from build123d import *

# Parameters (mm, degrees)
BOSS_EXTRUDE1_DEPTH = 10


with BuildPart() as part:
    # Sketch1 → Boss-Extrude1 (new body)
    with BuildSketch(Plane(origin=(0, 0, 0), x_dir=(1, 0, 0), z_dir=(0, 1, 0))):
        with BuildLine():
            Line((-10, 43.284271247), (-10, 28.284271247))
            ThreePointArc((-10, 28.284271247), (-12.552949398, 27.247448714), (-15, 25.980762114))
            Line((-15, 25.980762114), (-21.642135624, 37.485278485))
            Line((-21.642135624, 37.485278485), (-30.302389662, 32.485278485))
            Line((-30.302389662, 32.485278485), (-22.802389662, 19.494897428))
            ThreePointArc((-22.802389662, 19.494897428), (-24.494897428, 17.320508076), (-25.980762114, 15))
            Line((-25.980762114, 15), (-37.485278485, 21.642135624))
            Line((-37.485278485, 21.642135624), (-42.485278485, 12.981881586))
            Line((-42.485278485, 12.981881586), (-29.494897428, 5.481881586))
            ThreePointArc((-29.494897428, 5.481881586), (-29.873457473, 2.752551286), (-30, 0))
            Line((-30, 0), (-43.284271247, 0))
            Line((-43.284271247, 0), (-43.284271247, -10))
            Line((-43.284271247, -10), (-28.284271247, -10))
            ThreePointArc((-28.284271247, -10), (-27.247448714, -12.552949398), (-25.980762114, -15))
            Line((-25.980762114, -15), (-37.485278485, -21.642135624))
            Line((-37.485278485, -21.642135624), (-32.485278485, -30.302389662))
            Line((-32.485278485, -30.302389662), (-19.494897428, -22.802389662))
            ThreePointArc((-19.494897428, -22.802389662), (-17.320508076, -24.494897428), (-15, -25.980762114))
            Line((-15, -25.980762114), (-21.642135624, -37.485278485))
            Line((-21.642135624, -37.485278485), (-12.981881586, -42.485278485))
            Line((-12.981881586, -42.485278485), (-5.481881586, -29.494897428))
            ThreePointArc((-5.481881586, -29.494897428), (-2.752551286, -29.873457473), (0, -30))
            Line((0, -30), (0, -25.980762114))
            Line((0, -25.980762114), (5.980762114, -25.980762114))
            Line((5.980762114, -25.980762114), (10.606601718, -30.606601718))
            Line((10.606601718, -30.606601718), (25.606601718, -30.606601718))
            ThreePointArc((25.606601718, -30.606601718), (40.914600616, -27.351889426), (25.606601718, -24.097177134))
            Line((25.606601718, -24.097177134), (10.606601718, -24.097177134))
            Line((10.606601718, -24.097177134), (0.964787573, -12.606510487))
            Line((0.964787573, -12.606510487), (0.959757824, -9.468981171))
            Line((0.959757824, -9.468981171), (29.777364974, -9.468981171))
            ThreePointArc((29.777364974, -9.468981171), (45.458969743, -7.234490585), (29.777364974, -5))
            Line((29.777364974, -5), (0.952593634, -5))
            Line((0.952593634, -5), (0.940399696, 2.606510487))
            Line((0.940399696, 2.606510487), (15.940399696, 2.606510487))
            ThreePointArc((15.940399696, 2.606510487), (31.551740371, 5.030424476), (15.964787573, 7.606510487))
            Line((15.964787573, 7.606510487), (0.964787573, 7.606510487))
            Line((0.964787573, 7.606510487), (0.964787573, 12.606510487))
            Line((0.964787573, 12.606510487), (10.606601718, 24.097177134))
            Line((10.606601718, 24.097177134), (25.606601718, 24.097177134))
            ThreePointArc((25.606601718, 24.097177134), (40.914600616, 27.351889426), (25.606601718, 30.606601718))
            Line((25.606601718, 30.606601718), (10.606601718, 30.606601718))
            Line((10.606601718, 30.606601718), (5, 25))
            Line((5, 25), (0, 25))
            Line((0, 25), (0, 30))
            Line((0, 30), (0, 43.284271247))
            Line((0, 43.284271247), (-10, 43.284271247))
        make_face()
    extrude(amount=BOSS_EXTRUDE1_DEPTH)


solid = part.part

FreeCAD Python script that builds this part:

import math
import FreeCAD as App
import Part
import Sketcher

V = App.Vector
Q = App.Units.Quantity

doc = App.newDocument("Part")
params = doc.addObject("Spreadsheet::Sheet", "Params")
for row, (alias, value) in enumerate([
    ("sketch1_radius", "30 mm"),
    ("sketch1_radius2", "8 mm"),
    ("sketch1_width", "15 mm"),
    ("sketch1_width2", "5 mm"),
    ("sketch1_width3", "10 mm"),
    ("pad1_length", "10 mm"),
], start=1):
    params.set(f"A{row}", alias)
    params.set(f"B{row}", "=" + value)
    params.setAlias(f"B{row}", alias)

body = doc.addObject("PartDesign::Body", "Body")

# Sketch on XZ plane
sketch1 = body.newObject("Sketcher::SketchObject", "Sketch")
sketch1.AttachmentSupport = (doc.getObject("XZ_Plane"), [""])
sketch1.MapMode = "FlatFace"
sketch1.addGeometry(Part.LineSegment(V(-10, -43.3, 0), V(-10, -28.3, 0)), False)
sketch1.addGeometry(Part.ArcOfCircle(Part.Circle(V(0, 0, 0), V(0, 0, 1), 30), math.radians(-120), math.radians(-109.47)), False)
sketch1.addGeometry(Part.LineSegment(V(-15, -26, 0), V(-21.6, -37.5, 0)), False)
sketch1.addGeometry(Part.LineSegment(V(-21.6, -37.5, 0), V(-30.3, -32.5, 0)), False)
sketch1.addGeometry(Part.LineSegment(V(-30.3, -32.5, 0), V(-22.8, -19.5, 0)), False)
sketch1.addGeometry(Part.ArcOfCircle(Part.Circle(V(0, 0, 0), V(0, 0, 1), 30), math.radians(-150), math.radians(-139.47)), False)
sketch1.addGeometry(Part.LineSegment(V(-26, -15, 0), V(-37.5, -21.6, 0)), False)
sketch1.addGeometry(Part.LineSegment(V(-37.5, -21.6, 0), V(-42.5, -13, 0)), False)
sketch1.addGeometry(Part.LineSegment(V(-42.5, -13, 0), V(-29.5, -5.5, 0)), False)
sketch1.addGeometry(Part.ArcOfCircle(Part.Circle(V(0, 0, 0), V(0, 0, 1), 30), math.radians(-180), math.radians(-169.47)), False)
sketch1.addGeometry(Part.LineSegment(V(-30, 0, 0), V(-43.3, 0, 0)), False)
sketch1.addGeometry(Part.LineSegment(V(-43.3, 0, 0), V(-43.3, 10, 0)), False)
sketch1.addGeometry(Part.LineSegment(V(-43.3, 10, 0), V(-28.3, 10, 0)), False)
sketch1.addGeometry(Part.ArcOfCircle(Part.Circle(V(0, 0, 0), V(0, 0, 1), 30), math.radians(150), math.radians(160.53)), False)
sketch1.addGeometry(Part.LineSegment(V(-26, 15, 0), V(-37.5, 21.6, 0)), False)
sketch1.addGeometry(Part.LineSegment(V(-37.5, 21.6, 0), V(-32.5, 30.3, 0)), False)
sketch1.addGeometry(Part.LineSegment(V(-32.5, 30.3, 0), V(-19.5, 22.8, 0)), False)
sketch1.addGeometry(Part.ArcOfCircle(Part.Circle(V(0, 0, 0), V(0, 0, 1), 30), math.radians(120), math.radians(130.53)), False)
sketch1.addGeometry(Part.LineSegment(V(-15, 26, 0), V(-21.6, 37.5, 0)), False)
sketch1.addGeometry(Part.LineSegment(V(-21.6, 37.5, 0), V(-13, 42.5, 0)), False)
sketch1.addGeometry(Part.LineSegment(V(-13, 42.5, 0), V(-5.5, 29.5, 0)), False)
sketch1.addGeometry(Part.ArcOfCircle(Part.Circle(V(0, 0, 0), V(0, 0, 1), 30), math.radians(90), math.radians(100.53)), False)
sketch1.addGeometry(Part.LineSegment(V(0, 30, 0), V(0, 26, 0)), False)
sketch1.addGeometry(Part.LineSegment(V(0, 26, 0), V(6, 26, 0)), False)
sketch1.addGeometry(Part.LineSegment(V(6, 26, 0), V(10.6, 30.6, 0)), False)
sketch1.addGeometry(Part.LineSegment(V(10.6, 30.6, 0), V(25.6, 30.6, 0)), False)
sketch1.addGeometry(Part.ArcOfCircle(Part.Circle(V(32.9, 27.4, 0), V(0, 0, 1), 8), math.radians(-156), math.radians(156)), False)
sketch1.addGeometry(Part.LineSegment(V(25.6, 24.1, 0), V(10.6, 24.1, 0)), False)
sketch1.addGeometry(Part.LineSegment(V(10.6, 24.1, 0), V(1, 12.6, 0)), False)
sketch1.addGeometry(Part.LineSegment(V(1, 12.6, 0), V(1, 9.5, 0)), False)
sketch1.addGeometry(Part.LineSegment(V(1, 9.5, 0), V(29.8, 9.5, 0)), False)
sketch1.addGeometry(Part.ArcOfCircle(Part.Circle(V(37.5, 7.2, 0), V(0, 0, 1), 8), math.radians(-164), math.radians(164)), False)
sketch1.addGeometry(Part.LineSegment(V(29.8, 5, 0), V(1, 5, 0)), False)
sketch1.addGeometry(Part.LineSegment(V(1, 5, 0), V(0.9, -2.6, 0)), False)
sketch1.addGeometry(Part.LineSegment(V(0.9, -2.6, 0), V(15.9, -2.6, 0)), False)
sketch1.addGeometry(Part.ArcOfCircle(Part.Circle(V(23.6, -5.1, 0), V(0, 0, 1), 8), math.radians(-162), math.radians(162)), False)
sketch1.addGeometry(Part.LineSegment(V(16, -7.6, 0), V(1, -7.6, 0)), False)
sketch1.addGeometry(Part.LineSegment(V(1, -7.6, 0), V(1, -12.6, 0)), False)
sketch1.addGeometry(Part.LineSegment(V(1, -12.6, 0), V(10.6, -24.1, 0)), False)
sketch1.addGeometry(Part.LineSegment(V(10.6, -24.1, 0), V(25.6, -24.1, 0)), False)
sketch1.addGeometry(Part.ArcOfCircle(Part.Circle(V(32.9, -27.4, 0), V(0, 0, 1), 8), math.radians(-156), math.radians(156)), False)
sketch1.addGeometry(Part.LineSegment(V(25.6, -30.6, 0), V(10.6, -30.6, 0)), False)
sketch1.addGeometry(Part.LineSegment(V(10.6, -30.6, 0), V(5, -25, 0)), False)
sketch1.addGeometry(Part.LineSegment(V(5, -25, 0), V(0, -25, 0)), False)
sketch1.addGeometry(Part.LineSegment(V(0, -25, 0), V(0, -43.3, 0)), False)
sketch1.addGeometry(Part.LineSegment(V(0, -43.3, 0), V(-10, -43.3, 0)), False)
sketch1.addConstraint(Sketcher.Constraint("Coincident", 0, 2, 1, 2))
sketch1.addConstraint(Sketcher.Constraint("Coincident", 1, 1, 2, 1))
sketch1.addConstraint(Sketcher.Constraint("Coincident", 2, 2, 3, 1))
sketch1.addConstraint(Sketcher.Constraint("Coincident", 3, 2, 4, 1))
sketch1.addConstraint(Sketcher.Constraint("Coincident", 4, 2, 5, 2))
sketch1.addConstraint(Sketcher.Constraint("Coincident", 5, 1, 6, 1))
sketch1.addConstraint(Sketcher.Constraint("Coincident", 6, 2, 7, 1))
sketch1.addConstraint(Sketcher.Constraint("Coincident", 7, 2, 8, 1))
sketch1.addConstraint(Sketcher.Constraint("Coincident", 8, 2, 9, 2))
sketch1.addConstraint(Sketcher.Constraint("Coincident", 9, 1, 10, 1))
sketch1.addConstraint(Sketcher.Constraint("Coincident", 10, 2, 11, 1))
sketch1.addConstraint(Sketcher.Constraint("Coincident", 11, 2, 12, 1))
sketch1.addConstraint(Sketcher.Constraint("Coincident", 12, 2, 13, 2))
sketch1.addConstraint(Sketcher.Constraint("Coincident", 13, 1, 14, 1))
sketch1.addConstraint(Sketcher.Constraint("Coincident", 14, 2, 15, 1))
sketch1.addConstraint(Sketcher.Constraint("Coincident", 15, 2, 16, 1))
sketch1.addConstraint(Sketcher.Constraint("Coincident", 16, 2, 17, 2))
sketch1.addConstraint(Sketcher.Constraint("Coincident", 17, 1, 18, 1))
sketch1.addConstraint(Sketcher.Constraint("Coincident", 18, 2, 19, 1))
sketch1.addConstraint(Sketcher.Constraint("Coincident", 19, 2, 20, 1))
sketch1.addConstraint(Sketcher.Constraint("Coincident", 20, 2, 21, 2))
sketch1.addConstraint(Sketcher.Constraint("Coincident", 21, 1, 22, 1))
sketch1.addConstraint(Sketcher.Constraint("Coincident", 22, 2, 23, 1))
sketch1.addConstraint(Sketcher.Constraint("Coincident", 23, 2, 24, 1))
sketch1.addConstraint(Sketcher.Constraint("Coincident", 24, 2, 25, 1))
sketch1.addConstraint(Sketcher.Constraint("Coincident", 25, 2, 26, 2))
sketch1.addConstraint(Sketcher.Constraint("Coincident", 26, 1, 27, 1))
sketch1.addConstraint(Sketcher.Constraint("Coincident", 27, 2, 28, 1))
sketch1.addConstraint(Sketcher.Constraint("Coincident", 28, 2, 29, 1))
sketch1.addConstraint(Sketcher.Constraint("Coincident", 29, 2, 30, 1))
sketch1.addConstraint(Sketcher.Constraint("Coincident", 30, 2, 31, 2))
sketch1.addConstraint(Sketcher.Constraint("Coincident", 31, 1, 32, 1))
sketch1.addConstraint(Sketcher.Constraint("Coincident", 32, 2, 33, 1))
sketch1.addConstraint(Sketcher.Constraint("Coincident", 33, 2, 34, 1))
sketch1.addConstraint(Sketcher.Constraint("Coincident", 34, 2, 35, 2))
sketch1.addConstraint(Sketcher.Constraint("Coincident", 35, 1, 36, 1))
sketch1.addConstraint(Sketcher.Constraint("Coincident", 36, 2, 37, 1))
sketch1.addConstraint(Sketcher.Constraint("Coincident", 37, 2, 38, 1))
sketch1.addConstraint(Sketcher.Constraint("Coincident", 38, 2, 39, 1))
sketch1.addConstraint(Sketcher.Constraint("Coincident", 39, 2, 40, 2))
sketch1.addConstraint(Sketcher.Constraint("Coincident", 40, 1, 41, 1))
sketch1.addConstraint(Sketcher.Constraint("Coincident", 41, 2, 42, 1))
sketch1.addConstraint(Sketcher.Constraint("Coincident", 42, 2, 43, 1))
sketch1.addConstraint(Sketcher.Constraint("Coincident", 43, 2, 44, 1))
sketch1.addConstraint(Sketcher.Constraint("Coincident", 44, 2, 45, 1))
sketch1.addConstraint(Sketcher.Constraint("Coincident", 45, 2, 0, 1))
sketch1.addConstraint(Sketcher.Constraint("Vertical", 0))
sketch1.addConstraint(Sketcher.Constraint("Horizontal", 10))
sketch1.addConstraint(Sketcher.Constraint("Vertical", 11))
sketch1.addConstraint(Sketcher.Constraint("Horizontal", 12))
sketch1.addConstraint(Sketcher.Constraint("Vertical", 22))
sketch1.addConstraint(Sketcher.Constraint("Horizontal", 23))
sketch1.addConstraint(Sketcher.Constraint("Horizontal", 25))
sketch1.addConstraint(Sketcher.Constraint("Horizontal", 27))
sketch1.addConstraint(Sketcher.Constraint("Horizontal", 30))
sketch1.addConstraint(Sketcher.Constraint("Horizontal", 32))
sketch1.addConstraint(Sketcher.Constraint("Horizontal", 34))
sketch1.addConstraint(Sketcher.Constraint("Horizontal", 36))
sketch1.addConstraint(Sketcher.Constraint("Vertical", 37))
sketch1.addConstraint(Sketcher.Constraint("Horizontal", 39))
sketch1.addConstraint(Sketcher.Constraint("Horizontal", 41))
sketch1.addConstraint(Sketcher.Constraint("Horizontal", 43))
sketch1.addConstraint(Sketcher.Constraint("Vertical", 44))
sketch1.addConstraint(Sketcher.Constraint("Horizontal", 45))
sketch1.addConstraint(Sketcher.Constraint("Coincident", 1, 3, -1, 1))
sketch1.addConstraint(Sketcher.Constraint("Coincident", 5, 3, -1, 1))
sketch1.addConstraint(Sketcher.Constraint("Coincident", 9, 3, -1, 1))
sketch1.addConstraint(Sketcher.Constraint("Coincident", 13, 3, -1, 1))
sketch1.addConstraint(Sketcher.Constraint("Coincident", 17, 3, -1, 1))
sketch1.addConstraint(Sketcher.Constraint("Coincident", 21, 3, -1, 1))
sketch1.addConstraint(Sketcher.Constraint("Equal", 1, 5))
sketch1.addConstraint(Sketcher.Constraint("Equal", 5, 9))
sketch1.addConstraint(Sketcher.Constraint("Equal", 9, 13))
sketch1.addConstraint(Sketcher.Constraint("Equal", 13, 17))
sketch1.addConstraint(Sketcher.Constraint("Equal", 17, 21))
sketch1.addConstraint(Sketcher.Constraint("Equal", 26, 31))
sketch1.addConstraint(Sketcher.Constraint("Equal", 31, 35))
sketch1.addConstraint(Sketcher.Constraint("Equal", 35, 40))
sketch1.addConstraint(Sketcher.Constraint("Symmetric", 26, 3, 40, 3, -1))
sketch1.addConstraint(Sketcher.Constraint("Symmetric", 6, 2, 14, 2, -1))
sketch1.addConstraint(Sketcher.Constraint("Symmetric", 2, 2, 18, 2, -1))
sketch1.addConstraint(Sketcher.Constraint("Symmetric", 28, 2, 37, 2, -1))
sketch1.addConstraint(Sketcher.Constraint("Symmetric", 27, 2, 38, 2, -1))
sketch1.addConstraint(Sketcher.Constraint("Symmetric", 24, 2, 41, 2, -1))
sketch1.addConstraint(Sketcher.Constraint("PointOnObject", 9, 1, -1))
sketch1.addConstraint(Sketcher.Constraint("PointOnObject", 21, 1, -2))
sketch1.addConstraint(Sketcher.Constraint("PointOnObject", 43, 2, -2))
sketch1.addConstraint(Sketcher.Constraint("Perpendicular", 2, 3))
sketch1.addConstraint(Sketcher.Constraint("Perpendicular", 3, 4))
sketch1.addConstraint(Sketcher.Constraint("Perpendicular", 6, 7))
sketch1.addConstraint(Sketcher.Constraint("Perpendicular", 7, 8))
sketch1.addConstraint(Sketcher.Constraint("Perpendicular", 4, 14))
sketch1.addConstraint(Sketcher.Constraint("Perpendicular", 14, 15))
sketch1.addConstraint(Sketcher.Constraint("Perpendicular", 15, 16))
sketch1.addConstraint(Sketcher.Constraint("Perpendicular", 8, 18))
sketch1.addConstraint(Sketcher.Constraint("Perpendicular", 18, 19))
sketch1.addConstraint(Sketcher.Constraint("Perpendicular", 19, 20))
sketch1.addConstraint(Sketcher.Constraint("Parallel", 29, 33))
sketch1.addConstraint(Sketcher.Constraint("Perpendicular", 24, 42))
sketch1.addConstraint(Sketcher.Constraint("Horizontal", 17, 1, 22, 2))
sketch1.addConstraint(Sketcher.Constraint("Vertical", 5, 1, 13, 1))
sketch1.addConstraint(Sketcher.Constraint("Vertical", 25, 2, 26, 1))
sketch1.addConstraint(Sketcher.Constraint("Vertical", 24, 2, 27, 2))
sketch1.addConstraint(Sketcher.Constraint("Vertical", 30, 2, 31, 1))
sketch1.addConstraint(Sketcher.Constraint("Equal", 12, 25))
sketch1.addConstraint(Sketcher.Constraint("Equal", 27, 34))
sketch1.addConstraint(Sketcher.Constraint("Equal", 34, 36))
sketch1.addConstraint(Sketcher.Constraint("Equal", 41, 0))
sketch1.addConstraint(Sketcher.Constraint("Equal", 45, 11))
sketch1.addConstraint(Sketcher.Constraint("Equal", 43, 37))
sketch1.addConstraint(Sketcher.Constraint("Equal", 2, 6))
sketch1.addConstraint(Sketcher.Constraint("Equal", 3, 7))
sketch1.addConstraint(Sketcher.Constraint("Equal", 4, 8))
sketch1.addConstraint(Sketcher.Constraint("Equal", 7, 15))
sketch1.addConstraint(Sketcher.Constraint("Equal", 8, 16))
sketch1.addConstraint(Sketcher.Constraint("Equal", 15, 19))
sketch1.addConstraint(Sketcher.Constraint("Equal", 20, 28))
sketch1.addConstraint(Sketcher.Constraint("Radius", 1, 30.0))
sketch1.addConstraint(Sketcher.Constraint("Radius", 26, 8.0))
sketch1.addConstraint(Sketcher.Constraint("DistanceX", 12, 1, 12, 2, 15.0))
sketch1.addConstraint(Sketcher.Constraint("DistanceX", 43, 2, 43, 1, 5.0))
sketch1.addConstraint(Sketcher.Constraint("DistanceX", 45, 2, 45, 1, 10.0))
sketch1.addConstraint(Sketcher.Constraint("Angle", 2, Q("-120 deg")))
sketch1.addConstraint(Sketcher.Constraint("Angle", 24, Q("45 deg")))
sketch1.addConstraint(Sketcher.Constraint("Angle", 28, Q("-130 deg")))
sketch1.addConstraint(Sketcher.Constraint("Distance", 3, 10.0))
sketch1.addConstraint(Sketcher.Constraint("Distance", 4, 15.0))
sketch1.addConstraint(Sketcher.Constraint("DistanceY", -1, 1, 31, 1, 5.0))
sketch1.addConstraint(Sketcher.Constraint("DistanceY", 42, 2, -1, 1, 25.0))
sketch1.addConstraint(Sketcher.Constraint("DistanceY", 35, 1, 34, 2, 5.0))
sketch1.addConstraint(Sketcher.Constraint("DistanceX", 24, 2, 26, 3, 22.307999))
sketch1.addConstraint(Sketcher.Constraint("DistanceX", 32, 2, 32, 1, 28.824771))
sketch1.addConstraint(Sketcher.Constraint("DistanceX", -1, 1, 26, 3, 32.914601))
sketch1.addConstraint(Sketcher.Constraint("DistanceX", -1, 1, 33, 2, 0.9404))
sketch1.addConstraint(Sketcher.Constraint("DistanceY", 31, 3, 26, 3, 20.117399))
sketch1.addConstraint(Sketcher.Constraint("DistanceX", 30, 1, 30, 2, 28.817607))
sketch1.setExpression("Constraints[117]", "Params.sketch1_radius")
sketch1.setExpression("Constraints[118]", "Params.sketch1_radius2")
sketch1.setExpression("Constraints[119]", "Params.sketch1_width")
sketch1.setExpression("Constraints[120]", "Params.sketch1_width2")
sketch1.setExpression("Constraints[121]", "Params.sketch1_width3")
pad1 = body.newObject("PartDesign::Pad", "Pad")
pad1.Profile = sketch1
pad1.setExpression("Length", "Params.pad1_length")
pad1.Reversed = True

doc.recompute()
